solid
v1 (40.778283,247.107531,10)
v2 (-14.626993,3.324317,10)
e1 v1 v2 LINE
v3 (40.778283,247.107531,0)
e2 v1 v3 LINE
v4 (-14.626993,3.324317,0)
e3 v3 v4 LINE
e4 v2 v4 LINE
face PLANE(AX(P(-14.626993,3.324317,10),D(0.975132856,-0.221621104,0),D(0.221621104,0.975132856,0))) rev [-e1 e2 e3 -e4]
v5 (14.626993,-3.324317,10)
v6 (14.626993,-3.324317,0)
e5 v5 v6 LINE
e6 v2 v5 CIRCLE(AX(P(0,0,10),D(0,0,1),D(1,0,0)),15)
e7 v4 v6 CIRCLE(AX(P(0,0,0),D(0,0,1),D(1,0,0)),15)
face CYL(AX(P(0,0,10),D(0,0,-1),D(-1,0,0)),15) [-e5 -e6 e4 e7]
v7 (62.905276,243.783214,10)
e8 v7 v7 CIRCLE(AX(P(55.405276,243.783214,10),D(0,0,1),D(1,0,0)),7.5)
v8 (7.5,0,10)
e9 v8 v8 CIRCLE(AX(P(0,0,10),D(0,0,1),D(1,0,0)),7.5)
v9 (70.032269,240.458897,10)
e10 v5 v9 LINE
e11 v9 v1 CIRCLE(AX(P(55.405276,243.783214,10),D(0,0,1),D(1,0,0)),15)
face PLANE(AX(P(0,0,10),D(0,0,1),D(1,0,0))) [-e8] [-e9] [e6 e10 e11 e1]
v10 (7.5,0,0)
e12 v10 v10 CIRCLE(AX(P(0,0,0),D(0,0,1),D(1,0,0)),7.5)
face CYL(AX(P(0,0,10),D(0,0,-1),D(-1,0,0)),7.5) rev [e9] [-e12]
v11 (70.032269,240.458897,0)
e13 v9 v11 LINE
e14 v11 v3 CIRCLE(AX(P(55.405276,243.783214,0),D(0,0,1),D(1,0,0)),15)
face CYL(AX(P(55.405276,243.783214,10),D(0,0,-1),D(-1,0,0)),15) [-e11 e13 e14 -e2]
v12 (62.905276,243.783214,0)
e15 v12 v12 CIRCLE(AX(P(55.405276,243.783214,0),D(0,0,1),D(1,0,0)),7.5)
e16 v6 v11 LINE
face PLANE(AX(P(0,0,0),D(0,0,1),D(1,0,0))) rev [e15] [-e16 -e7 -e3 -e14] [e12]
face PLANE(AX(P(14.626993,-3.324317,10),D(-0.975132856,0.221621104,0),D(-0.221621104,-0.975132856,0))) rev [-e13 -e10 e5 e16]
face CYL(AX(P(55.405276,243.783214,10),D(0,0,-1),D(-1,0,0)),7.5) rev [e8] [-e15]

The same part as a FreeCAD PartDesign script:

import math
import FreeCAD as App
import Part
import Sketcher
Q = App.Units.Quantity

doc = App.newDocument("Part")
params = doc.addObject("Spreadsheet::Sheet", "Params")
for row, (alias, value) in enumerate([
    ("sketch1_diameter", "15 mm"),
    ("sketch1_radius", "15 mm"),
    ("sketch1_length", "250 mm"),
    ("pad1_length", "10 mm"),
], start=1):
    params.set(f"A{row}", alias)
    params.set(f"B{row}", "=" + value)
    params.setAlias(f"B{row}", alias)

body = doc.addObject("PartDesign::Body", "Body")

# Sketch on XY plane
sketch1 = body.newObject("Sketcher::SketchObject", "Sketch")
sketch1.AttachmentSupport = (doc.getObject("XY_Plane"), [""])
sketch1.MapMode = "FlatFace"
sketch1.addGeometry(Part.LineSegment(App.Vector(40.778283, 247.107531, 0), App.Vector(-14.626993, 3.324317, 0)), False)
sketch1.addGeometry(Part.ArcOfCircle(Part.Circle(App.Vector(0, 0, 0), App.Vector(0, 0, 1), 15), math.radians(167.195734), math.radians(347.195734)), False)
sketch1.addGeometry(Part.LineSegment(App.Vector(14.626993, -3.324317, 0), App.Vector(70.032269, 240.458897, 0)), False)
sketch1.addGeometry(Part.ArcOfCircle(Part.Circle(App.Vector(55.405276, 243.783214, 0), App.Vector(0, 0, 1), 15), math.radians(-12.804266), math.radians(167.195734)), False)
sketch1.addGeometry(Part.Circle(App.Vector(0, 0, 0), App.Vector(0, 0, 1), 7.5), False)
sketch1.addGeometry(Part.Circle(App.Vector(55.405276, 243.783214, 0), App.Vector(0, 0, 1), 7.5), False)
sketch1.addConstraint(Sketcher.Constraint("Tangent", 0, 2, 1, 1))
sketch1.addConstraint(Sketcher.Constraint("Tangent", 1, 2, 2, 1))
sketch1.addConstraint(Sketcher.Constraint("Tangent", 2, 2, 3, 1))
sketch1.addConstraint(Sketcher.Constraint("Tangent", 3, 2, 0, 1))
sketch1.addConstraint(Sketcher.Constraint("Coincident", 1, 3, -1, 1))
sketch1.addConstraint(Sketcher.Constraint("Coincident", 4, 3, -1, 1))
sketch1.addConstraint(Sketcher.Constraint("Coincident", 5, 3, 3, 3))
sketch1.addConstraint(Sketcher.Constraint("Equal", 1, 3))
sketch1.addConstraint(Sketcher.Constraint("Equal", 4, 5))
sketch1.addConstraint(Sketcher.Constraint("Diameter", 4, Q("15 mm")))
sketch1.addConstraint(Sketcher.Constraint("Radius", 1, Q("15 mm")))
sketch1.addConstraint(Sketcher.Constraint("Distance", 0, Q("250 mm")))
sketch1.addConstraint(Sketcher.Constraint("DistanceX", -1, 1, 2, 2, Q("70.032269 mm")))
sketch1.setExpression("Constraints[9]", "Params.sketch1_diameter")
sketch1.setExpression("Constraints[10]", "Params.sketch1_radius")
sketch1.setExpression("Constraints[11]", "Params.sketch1_length")
pad1 = body.newObject("PartDesign::Pad", "Pad")
pad1.Profile = sketch1
pad1.setExpression("Length", "Params.pad1_length")

doc.recompute()
